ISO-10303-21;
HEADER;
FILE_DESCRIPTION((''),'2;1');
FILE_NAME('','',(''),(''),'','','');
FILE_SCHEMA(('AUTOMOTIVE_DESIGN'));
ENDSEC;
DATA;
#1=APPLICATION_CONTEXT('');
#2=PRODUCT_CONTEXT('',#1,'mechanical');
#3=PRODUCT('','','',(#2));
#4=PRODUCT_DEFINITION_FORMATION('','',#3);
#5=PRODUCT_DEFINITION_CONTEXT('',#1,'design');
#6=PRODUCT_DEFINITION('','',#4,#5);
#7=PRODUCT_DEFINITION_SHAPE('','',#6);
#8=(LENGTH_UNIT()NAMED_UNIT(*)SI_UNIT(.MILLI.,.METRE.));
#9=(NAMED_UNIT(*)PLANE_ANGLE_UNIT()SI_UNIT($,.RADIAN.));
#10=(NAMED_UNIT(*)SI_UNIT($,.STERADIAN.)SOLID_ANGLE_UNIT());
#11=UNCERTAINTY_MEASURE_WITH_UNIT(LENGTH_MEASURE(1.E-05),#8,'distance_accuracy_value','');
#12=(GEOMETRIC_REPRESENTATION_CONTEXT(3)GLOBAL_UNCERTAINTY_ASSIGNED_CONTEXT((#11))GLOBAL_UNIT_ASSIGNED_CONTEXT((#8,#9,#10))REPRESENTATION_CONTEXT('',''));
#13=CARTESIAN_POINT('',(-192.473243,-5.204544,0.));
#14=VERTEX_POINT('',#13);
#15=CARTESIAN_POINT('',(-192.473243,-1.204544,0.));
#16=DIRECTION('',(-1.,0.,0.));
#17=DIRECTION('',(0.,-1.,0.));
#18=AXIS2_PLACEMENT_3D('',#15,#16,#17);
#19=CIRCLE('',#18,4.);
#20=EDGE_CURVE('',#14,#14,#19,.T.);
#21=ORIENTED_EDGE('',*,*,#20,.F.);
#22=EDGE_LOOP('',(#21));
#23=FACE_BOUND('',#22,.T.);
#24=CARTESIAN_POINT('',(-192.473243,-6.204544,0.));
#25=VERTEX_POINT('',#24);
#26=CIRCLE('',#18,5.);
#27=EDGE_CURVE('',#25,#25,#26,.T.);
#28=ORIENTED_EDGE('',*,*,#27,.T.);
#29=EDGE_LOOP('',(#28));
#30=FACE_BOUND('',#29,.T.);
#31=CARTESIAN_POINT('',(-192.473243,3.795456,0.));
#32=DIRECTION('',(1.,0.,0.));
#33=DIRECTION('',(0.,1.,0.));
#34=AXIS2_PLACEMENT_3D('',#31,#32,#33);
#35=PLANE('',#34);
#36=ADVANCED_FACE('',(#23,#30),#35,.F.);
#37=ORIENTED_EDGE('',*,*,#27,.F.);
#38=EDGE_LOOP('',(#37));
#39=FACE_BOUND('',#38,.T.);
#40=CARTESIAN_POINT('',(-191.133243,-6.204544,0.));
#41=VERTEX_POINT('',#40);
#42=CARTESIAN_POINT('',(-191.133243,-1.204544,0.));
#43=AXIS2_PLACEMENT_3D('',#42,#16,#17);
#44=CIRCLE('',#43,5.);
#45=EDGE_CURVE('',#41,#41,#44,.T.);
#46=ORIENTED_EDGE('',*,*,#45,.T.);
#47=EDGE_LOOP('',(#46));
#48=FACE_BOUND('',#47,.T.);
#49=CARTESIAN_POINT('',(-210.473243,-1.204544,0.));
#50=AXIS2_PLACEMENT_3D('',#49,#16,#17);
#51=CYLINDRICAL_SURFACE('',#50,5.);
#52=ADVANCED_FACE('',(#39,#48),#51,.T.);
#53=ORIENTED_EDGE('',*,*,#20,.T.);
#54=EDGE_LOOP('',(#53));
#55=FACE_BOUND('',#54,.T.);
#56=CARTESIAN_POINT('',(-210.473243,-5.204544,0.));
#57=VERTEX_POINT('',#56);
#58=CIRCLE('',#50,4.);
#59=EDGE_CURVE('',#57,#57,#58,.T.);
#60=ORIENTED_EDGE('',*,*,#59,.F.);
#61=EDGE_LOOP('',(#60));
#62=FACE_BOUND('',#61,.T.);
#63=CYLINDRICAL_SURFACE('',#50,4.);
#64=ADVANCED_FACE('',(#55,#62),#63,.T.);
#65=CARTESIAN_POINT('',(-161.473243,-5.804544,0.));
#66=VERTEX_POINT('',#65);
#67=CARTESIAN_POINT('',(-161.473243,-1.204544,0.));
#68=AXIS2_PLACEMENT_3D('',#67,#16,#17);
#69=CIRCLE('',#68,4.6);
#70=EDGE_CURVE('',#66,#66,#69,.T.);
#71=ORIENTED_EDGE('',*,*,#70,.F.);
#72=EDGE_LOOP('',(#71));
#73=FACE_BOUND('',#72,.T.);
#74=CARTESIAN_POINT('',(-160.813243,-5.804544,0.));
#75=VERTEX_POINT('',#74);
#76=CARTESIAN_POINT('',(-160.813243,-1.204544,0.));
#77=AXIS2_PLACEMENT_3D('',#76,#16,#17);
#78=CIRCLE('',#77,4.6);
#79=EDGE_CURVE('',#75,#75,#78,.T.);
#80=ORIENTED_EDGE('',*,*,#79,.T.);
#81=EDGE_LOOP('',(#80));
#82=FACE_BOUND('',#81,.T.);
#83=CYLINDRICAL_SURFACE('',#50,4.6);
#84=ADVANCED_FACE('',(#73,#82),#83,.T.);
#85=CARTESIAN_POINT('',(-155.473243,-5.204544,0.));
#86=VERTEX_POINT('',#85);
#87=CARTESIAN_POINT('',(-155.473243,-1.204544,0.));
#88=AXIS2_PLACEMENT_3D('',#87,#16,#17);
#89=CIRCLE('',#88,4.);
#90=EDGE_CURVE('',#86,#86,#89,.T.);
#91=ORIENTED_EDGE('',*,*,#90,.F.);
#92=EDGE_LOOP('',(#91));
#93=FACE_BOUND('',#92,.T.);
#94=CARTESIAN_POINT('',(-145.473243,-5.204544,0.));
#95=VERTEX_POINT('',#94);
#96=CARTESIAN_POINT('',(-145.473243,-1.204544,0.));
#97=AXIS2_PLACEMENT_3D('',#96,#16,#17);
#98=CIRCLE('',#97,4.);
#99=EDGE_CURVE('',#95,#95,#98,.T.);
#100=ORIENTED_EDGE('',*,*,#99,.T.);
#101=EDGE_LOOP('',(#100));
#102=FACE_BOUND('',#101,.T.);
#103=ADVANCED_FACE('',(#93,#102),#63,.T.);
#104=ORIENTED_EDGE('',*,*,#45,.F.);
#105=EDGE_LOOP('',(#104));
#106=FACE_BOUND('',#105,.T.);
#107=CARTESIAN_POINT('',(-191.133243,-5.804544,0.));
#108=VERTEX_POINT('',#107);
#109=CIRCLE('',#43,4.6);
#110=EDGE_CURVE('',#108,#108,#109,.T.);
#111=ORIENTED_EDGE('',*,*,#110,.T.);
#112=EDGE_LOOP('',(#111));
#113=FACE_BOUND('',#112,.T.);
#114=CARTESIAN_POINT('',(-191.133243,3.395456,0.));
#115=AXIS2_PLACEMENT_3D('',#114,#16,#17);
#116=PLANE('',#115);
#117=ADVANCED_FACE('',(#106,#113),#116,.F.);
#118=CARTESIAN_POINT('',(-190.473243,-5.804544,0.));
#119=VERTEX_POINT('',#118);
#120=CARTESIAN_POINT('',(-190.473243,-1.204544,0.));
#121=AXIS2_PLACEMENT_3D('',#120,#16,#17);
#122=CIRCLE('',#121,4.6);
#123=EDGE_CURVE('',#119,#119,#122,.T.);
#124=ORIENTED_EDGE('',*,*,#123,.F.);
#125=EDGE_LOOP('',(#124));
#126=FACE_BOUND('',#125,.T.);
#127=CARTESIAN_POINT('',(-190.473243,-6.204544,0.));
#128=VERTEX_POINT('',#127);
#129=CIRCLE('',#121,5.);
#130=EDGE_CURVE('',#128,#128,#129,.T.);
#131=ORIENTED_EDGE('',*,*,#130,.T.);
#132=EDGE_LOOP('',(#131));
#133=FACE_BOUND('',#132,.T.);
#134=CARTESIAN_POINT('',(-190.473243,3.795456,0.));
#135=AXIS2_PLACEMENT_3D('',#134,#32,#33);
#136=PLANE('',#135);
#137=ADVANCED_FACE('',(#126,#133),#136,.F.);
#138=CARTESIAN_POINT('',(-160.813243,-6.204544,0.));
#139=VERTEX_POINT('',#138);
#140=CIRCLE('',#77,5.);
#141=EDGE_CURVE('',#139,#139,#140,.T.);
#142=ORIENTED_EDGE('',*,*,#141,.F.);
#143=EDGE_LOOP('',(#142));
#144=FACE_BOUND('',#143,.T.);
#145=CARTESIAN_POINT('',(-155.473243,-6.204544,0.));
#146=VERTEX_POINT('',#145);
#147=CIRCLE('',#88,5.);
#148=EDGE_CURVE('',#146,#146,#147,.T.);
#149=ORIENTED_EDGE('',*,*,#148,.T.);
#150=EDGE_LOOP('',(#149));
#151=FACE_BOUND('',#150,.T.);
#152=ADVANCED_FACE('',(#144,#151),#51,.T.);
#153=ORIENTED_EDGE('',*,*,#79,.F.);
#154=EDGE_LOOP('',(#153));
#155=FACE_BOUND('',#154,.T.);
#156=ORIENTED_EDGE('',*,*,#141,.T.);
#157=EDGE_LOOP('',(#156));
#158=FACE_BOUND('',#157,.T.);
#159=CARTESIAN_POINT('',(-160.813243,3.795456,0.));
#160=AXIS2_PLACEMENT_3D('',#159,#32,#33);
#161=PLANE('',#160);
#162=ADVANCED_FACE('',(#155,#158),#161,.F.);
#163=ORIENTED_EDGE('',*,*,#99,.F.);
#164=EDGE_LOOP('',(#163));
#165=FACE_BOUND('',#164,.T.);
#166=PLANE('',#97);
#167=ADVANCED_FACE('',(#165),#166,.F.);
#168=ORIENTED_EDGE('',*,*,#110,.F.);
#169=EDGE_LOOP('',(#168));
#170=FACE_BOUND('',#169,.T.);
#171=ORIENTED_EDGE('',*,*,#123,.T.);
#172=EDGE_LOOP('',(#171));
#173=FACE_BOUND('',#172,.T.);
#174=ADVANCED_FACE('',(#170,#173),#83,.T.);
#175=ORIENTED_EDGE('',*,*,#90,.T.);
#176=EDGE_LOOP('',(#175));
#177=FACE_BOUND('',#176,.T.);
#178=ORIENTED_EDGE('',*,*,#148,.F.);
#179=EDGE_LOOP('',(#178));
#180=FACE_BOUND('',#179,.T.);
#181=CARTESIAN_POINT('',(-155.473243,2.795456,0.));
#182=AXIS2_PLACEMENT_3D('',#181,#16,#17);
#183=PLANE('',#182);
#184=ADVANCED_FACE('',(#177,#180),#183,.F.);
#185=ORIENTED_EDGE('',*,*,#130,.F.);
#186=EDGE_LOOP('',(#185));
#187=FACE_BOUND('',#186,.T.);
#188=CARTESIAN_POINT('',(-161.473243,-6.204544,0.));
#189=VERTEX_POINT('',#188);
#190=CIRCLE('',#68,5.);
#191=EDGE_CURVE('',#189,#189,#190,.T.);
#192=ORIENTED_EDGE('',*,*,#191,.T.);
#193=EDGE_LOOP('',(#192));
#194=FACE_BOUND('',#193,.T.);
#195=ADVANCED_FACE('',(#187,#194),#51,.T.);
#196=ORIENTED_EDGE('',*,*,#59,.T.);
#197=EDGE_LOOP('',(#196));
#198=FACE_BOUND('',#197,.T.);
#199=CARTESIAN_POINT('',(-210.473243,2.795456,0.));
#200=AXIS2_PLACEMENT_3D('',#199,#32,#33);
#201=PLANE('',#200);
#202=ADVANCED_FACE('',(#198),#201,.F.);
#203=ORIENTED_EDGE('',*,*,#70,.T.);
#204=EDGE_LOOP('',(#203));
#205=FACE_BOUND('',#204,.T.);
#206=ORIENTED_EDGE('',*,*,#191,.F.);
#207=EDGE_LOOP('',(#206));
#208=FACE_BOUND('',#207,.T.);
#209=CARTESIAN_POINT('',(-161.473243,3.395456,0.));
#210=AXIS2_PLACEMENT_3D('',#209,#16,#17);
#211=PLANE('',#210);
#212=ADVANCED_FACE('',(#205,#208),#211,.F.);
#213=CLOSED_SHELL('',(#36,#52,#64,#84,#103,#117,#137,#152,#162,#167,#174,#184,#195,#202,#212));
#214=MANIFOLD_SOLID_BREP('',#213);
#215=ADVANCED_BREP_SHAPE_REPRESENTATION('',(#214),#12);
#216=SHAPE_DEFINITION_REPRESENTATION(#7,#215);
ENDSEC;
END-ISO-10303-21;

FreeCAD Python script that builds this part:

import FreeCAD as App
import Part
import Sketcher
from FreeCAD import Vector
Q = App.Units.Quantity


def add_polygon(sketch, points):
    """Adds a closed chain of lines whose ends are joined by coincident constraints."""
    first, n = sketch.GeometryCount, len(points)
    for a, b in zip(points, points[1:] + points[:1]):
        sketch.addGeometry(Part.LineSegment(App.Vector(*a, 0), App.Vector(*b, 0)), False)
    for i in range(n):
        sketch.addConstraint(Sketcher.Constraint("Coincident", first + i, 2, first + (i + 1) % n, 1))

doc = App.newDocument("Part")
body = doc.addObject("PartDesign::Body", "Body")

sketch1 = body.newObject("Sketcher::SketchObject", "Sketch")
sketch1.AttachmentSupport = (doc.getObject("XY_Plane"), [""])
sketch1.MapMode = "FlatFace"
add_polygon(sketch1, [(-145.473243, -1.204544), (-145.473243, 2.795456), (-155.473243, 2.795456), (-155.473243, 3.795456), (-160.813243, 3.795456), (-160.813243, 3.395456), (-161.473243, 3.395456), (-161.473243, 3.795456), (-190.473243, 3.795456), (-190.473243, 3.395456), (-191.133243, 3.395456), (-191.133243, 3.795456), (-192.473243, 3.795456), (-192.473243, 2.795456), (-210.473243, 2.795456), (-210.473243, -1.204544)])
sketch1.addGeometry(Part.LineSegment(Vector(-210.473243, -1.204544, 0), Vector(-145.473243, -1.204544, 0)), True)
sketch1.addConstraint([
    Sketcher.Constraint("Vertical", 0),
    Sketcher.Constraint("Horizontal", 1),
    Sketcher.Constraint("Vertical", 2),
    Sketcher.Constraint("Horizontal", 3),
    Sketcher.Constraint("Vertical", 4),
    Sketcher.Constraint("Horizontal", 5),
    Sketcher.Constraint("Vertical", 6),
    Sketcher.Constraint("Horizontal", 7),
    Sketcher.Constraint("Vertical", 8),
    Sketcher.Constraint("Horizontal", 9),
    Sketcher.Constraint("Vertical", 10),
    Sketcher.Constraint("Horizontal", 11),
    Sketcher.Constraint("Vertical", 12),
    Sketcher.Constraint("Horizontal", 13),
    Sketcher.Constraint("Vertical", 14),
    Sketcher.Constraint("Horizontal", 15),
    Sketcher.Constraint("Horizontal", 16),
    Sketcher.Constraint("Coincident", 16, 1, 14, 2),
    Sketcher.Constraint("Horizontal", 3, 2, 6, 2),
    Sketcher.Constraint("Horizontal", 5, 2, 8, 2),
    Sketcher.Constraint("Horizontal", 7, 2, 10, 2),
    Sketcher.Constraint("Horizontal", 1, 2, 12, 2),
    Sketcher.Constraint("Vertical", 0, 2, 16, 2),
    Sketcher.Constraint("Equal", 5, 9),
    Sketcher.Constraint("DistanceX", 1, 2, 1, 1, Q("10 mm")),
    Sketcher.Constraint("DistanceX", 7, 2, 7, 1, Q("29 mm")),
    Sketcher.Constraint("DistanceX", 13, 2, 13, 1, Q("18 mm")),
    Sketcher.Constraint("DistanceX", 15, 1, 15, 2, Q("65 mm")),
    Sketcher.Constraint("DistanceY", 0, 1, 0, 2, Q("4 mm")),
    Sketcher.Constraint("DistanceY", 2, 1, 2, 2, Q("1 mm")),
    Sketcher.Constraint("DistanceY", 4, 2, 4, 1, Q("0.4 mm")),
    Sketcher.Constraint("DistanceX", 5, 2, 2, 2, Q("6 mm")),
    Sketcher.Constraint("DistanceX", 3, 2, 3, 1, Q("5.34 mm")),
    Sketcher.Constraint("DistanceX", 0, 2, -1, 1, Q("145.473243 mm")),
    Sketcher.Constraint("DistanceY", -1, 1, 0, 2, Q("2.795456 mm")),
])
revolution = body.newObject("PartDesign::Revolution", "Revolution")
revolution.Profile = sketch1
revolution.ReferenceAxis = (sketch1, ["Axis0"])
revolution.Angle = 360

doc.recompute()
